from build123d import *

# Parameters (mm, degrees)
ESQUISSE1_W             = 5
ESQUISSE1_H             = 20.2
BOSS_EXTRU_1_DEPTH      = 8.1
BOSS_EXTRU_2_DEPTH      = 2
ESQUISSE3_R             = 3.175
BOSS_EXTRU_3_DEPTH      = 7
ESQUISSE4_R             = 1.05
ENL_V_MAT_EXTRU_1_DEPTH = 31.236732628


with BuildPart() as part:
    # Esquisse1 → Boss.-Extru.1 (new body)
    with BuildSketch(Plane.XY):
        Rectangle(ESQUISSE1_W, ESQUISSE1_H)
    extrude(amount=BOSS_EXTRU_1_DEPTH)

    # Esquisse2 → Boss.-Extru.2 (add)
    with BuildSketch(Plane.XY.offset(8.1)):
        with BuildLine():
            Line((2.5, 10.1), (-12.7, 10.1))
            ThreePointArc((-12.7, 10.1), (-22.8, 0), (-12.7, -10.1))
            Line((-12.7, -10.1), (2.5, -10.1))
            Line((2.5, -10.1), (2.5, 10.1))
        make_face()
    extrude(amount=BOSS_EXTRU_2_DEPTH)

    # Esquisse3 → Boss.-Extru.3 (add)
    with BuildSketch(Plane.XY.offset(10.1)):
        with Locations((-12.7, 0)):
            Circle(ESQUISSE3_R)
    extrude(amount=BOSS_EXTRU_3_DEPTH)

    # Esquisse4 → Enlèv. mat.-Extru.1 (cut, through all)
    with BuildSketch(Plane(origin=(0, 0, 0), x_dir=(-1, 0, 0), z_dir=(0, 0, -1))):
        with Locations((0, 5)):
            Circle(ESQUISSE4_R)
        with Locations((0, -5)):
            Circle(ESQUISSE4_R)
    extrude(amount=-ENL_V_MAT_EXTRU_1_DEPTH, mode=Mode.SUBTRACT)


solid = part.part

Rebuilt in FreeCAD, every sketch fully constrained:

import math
import FreeCAD as App
import Part
import Sketcher
from FreeCAD import Vector
Q = App.Units.Quantity


def add_polygon(sketch, points):
    """Adds a closed chain of lines whose ends are joined by coincident constraints."""
    first, n = sketch.GeometryCount, len(points)
    for a, b in zip(points, points[1:] + points[:1]):
        sketch.addGeometry(Part.LineSegment(App.Vector(*a, 0), App.Vector(*b, 0)), False)
    for i in range(n):
        sketch.addConstraint(Sketcher.Constraint("Coincident", first + i, 2, first + (i + 1) % n, 1))

doc = App.newDocument("Part")
body = doc.addObject("PartDesign::Body", "Body")

# Sketch on XY plane
sketch1 = body.newObject("Sketcher::SketchObject", "Sketch")
sketch1.AttachmentSupport = (doc.getObject("XY_Plane"), [""])
sketch1.MapMode = "FlatFace"
add_polygon(sketch1, [(-2, 10), (-2, -10), (2, -10), (2, 10)])  # lines 0-3
sketch1.addConstraint([
    Sketcher.Constraint("Vertical", 0),
    Sketcher.Constraint("Horizontal", 1),
    Sketcher.Constraint("Vertical", 2),
    Sketcher.Constraint("Horizontal", 3),
    Sketcher.Constraint("Symmetric", 0, 2, 2, 2, -1, 1),
    Sketcher.Constraint("DistanceX", 1, 1, 1, 2, Q("5 mm")),
    Sketcher.Constraint("DistanceY", 0, 2, 0, 1, Q("20.2 mm")),
])
pad1 = body.newObject("PartDesign::Pad", "Pad")
pad1.Profile = sketch1
pad1.Length = 8.1

# Sketch on XY plane
sketch2 = body.newObject("Sketcher::SketchObject", "Sketch001")
sketch2.AttachmentSupport = (doc.getObject("XY_Plane"), [""])
sketch2.MapMode = "FlatFace"
sketch2.AttachmentOffset = App.Placement(Vector(0, 0, 8.1), App.Rotation())
sketch2.addGeometry([
    Part.LineSegment(Vector(2, 10, 0), Vector(-13, 10, 0)),
    Part.ArcOfCircle(Part.Circle(Vector(-13, 0, 0), Vector(0, 0, 1), 10), math.radians(90), math.radians(270)),
    Part.LineSegment(Vector(-13, -10, 0), Vector(2, -10, 0)),
    Part.LineSegment(Vector(2, -10, 0), Vector(2, 10, 0)),
], False)
sketch2.addConstraint([
    Sketcher.Constraint("Tangent", 0, 2, 1, 1),
    Sketcher.Constraint("Tangent", 1, 2, 2, 1),
    Sketcher.Constraint("Coincident", 2, 2, 3, 1),
    Sketcher.Constraint("Coincident", 3, 2, 0, 1),
    Sketcher.Constraint("Horizontal", 0),
    Sketcher.Constraint("Horizontal", 2),
    Sketcher.Constraint("Vertical", 3),
    Sketcher.Constraint("PointOnObject", 1, 3, -1),
    Sketcher.Constraint("Radius", 1, Q("10.1 mm")),
    Sketcher.Constraint("DistanceX", 0, 2, 0, 1, Q("15.2 mm")),
    Sketcher.Constraint("DistanceX", 1, 3, -1, 1, Q("12.7 mm")),
])
pad2 = body.newObject("PartDesign::Pad", "Pad001")
pad2.Profile = sketch2
pad2.Length = 2

# Sketch on XY plane
sketch3 = body.newObject("Sketcher::SketchObject", "Sketch002")
sketch3.AttachmentSupport = (doc.getObject("XY_Plane"), [""])
sketch3.MapMode = "FlatFace"
sketch3.AttachmentOffset = App.Placement(Vector(0, 0, 10.1), App.Rotation())
sketch3.addGeometry(Part.Circle(Vector(-12.7, 0, 0), Vector(0, 0, 1), 3.2), False)
sketch3.addConstraint([
    Sketcher.Constraint("PointOnObject", 0, 3, -1),
    Sketcher.Constraint("Diameter", 0, Q("6.35 mm")),
    Sketcher.Constraint("DistanceX", 0, 3, -1, 1, Q("12.7 mm")),
])
pad3 = body.newObject("PartDesign::Pad", "Pad002")
pad3.Profile = sketch3
pad3.Length = 7

# Sketch on XY plane
sketch4 = body.newObject("Sketcher::SketchObject", "Sketch003")
sketch4.AttachmentSupport = (doc.getObject("XY_Plane"), [""])
sketch4.MapMode = "FlatFace"
sketch4.addGeometry([
    Part.Circle(Vector(0, 5, 0), Vector(0, 0, 1), 1.1),
    Part.Circle(Vector(0, -5, 0), Vector(0, 0, 1), 1.1),
], False)
sketch4.addConstraint([
    Sketcher.Constraint("Equal", 0, 1),
    Sketcher.Constraint("Symmetric", 0, 3, 1, 3, -1, 1),
    Sketcher.Constraint("PointOnObject", 0, 3, -2),
    Sketcher.Constraint("Diameter", 0, Q("2.1 mm")),
    Sketcher.Constraint("DistanceY", -1, 1, 0, 3, Q("5 mm")),
])
pocket1 = body.newObject("PartDesign::Pocket", "Pocket")
pocket1.Profile = sketch4
pocket1.Type = "ThroughAll"
pocket1.Reversed = True

doc.recompute()
